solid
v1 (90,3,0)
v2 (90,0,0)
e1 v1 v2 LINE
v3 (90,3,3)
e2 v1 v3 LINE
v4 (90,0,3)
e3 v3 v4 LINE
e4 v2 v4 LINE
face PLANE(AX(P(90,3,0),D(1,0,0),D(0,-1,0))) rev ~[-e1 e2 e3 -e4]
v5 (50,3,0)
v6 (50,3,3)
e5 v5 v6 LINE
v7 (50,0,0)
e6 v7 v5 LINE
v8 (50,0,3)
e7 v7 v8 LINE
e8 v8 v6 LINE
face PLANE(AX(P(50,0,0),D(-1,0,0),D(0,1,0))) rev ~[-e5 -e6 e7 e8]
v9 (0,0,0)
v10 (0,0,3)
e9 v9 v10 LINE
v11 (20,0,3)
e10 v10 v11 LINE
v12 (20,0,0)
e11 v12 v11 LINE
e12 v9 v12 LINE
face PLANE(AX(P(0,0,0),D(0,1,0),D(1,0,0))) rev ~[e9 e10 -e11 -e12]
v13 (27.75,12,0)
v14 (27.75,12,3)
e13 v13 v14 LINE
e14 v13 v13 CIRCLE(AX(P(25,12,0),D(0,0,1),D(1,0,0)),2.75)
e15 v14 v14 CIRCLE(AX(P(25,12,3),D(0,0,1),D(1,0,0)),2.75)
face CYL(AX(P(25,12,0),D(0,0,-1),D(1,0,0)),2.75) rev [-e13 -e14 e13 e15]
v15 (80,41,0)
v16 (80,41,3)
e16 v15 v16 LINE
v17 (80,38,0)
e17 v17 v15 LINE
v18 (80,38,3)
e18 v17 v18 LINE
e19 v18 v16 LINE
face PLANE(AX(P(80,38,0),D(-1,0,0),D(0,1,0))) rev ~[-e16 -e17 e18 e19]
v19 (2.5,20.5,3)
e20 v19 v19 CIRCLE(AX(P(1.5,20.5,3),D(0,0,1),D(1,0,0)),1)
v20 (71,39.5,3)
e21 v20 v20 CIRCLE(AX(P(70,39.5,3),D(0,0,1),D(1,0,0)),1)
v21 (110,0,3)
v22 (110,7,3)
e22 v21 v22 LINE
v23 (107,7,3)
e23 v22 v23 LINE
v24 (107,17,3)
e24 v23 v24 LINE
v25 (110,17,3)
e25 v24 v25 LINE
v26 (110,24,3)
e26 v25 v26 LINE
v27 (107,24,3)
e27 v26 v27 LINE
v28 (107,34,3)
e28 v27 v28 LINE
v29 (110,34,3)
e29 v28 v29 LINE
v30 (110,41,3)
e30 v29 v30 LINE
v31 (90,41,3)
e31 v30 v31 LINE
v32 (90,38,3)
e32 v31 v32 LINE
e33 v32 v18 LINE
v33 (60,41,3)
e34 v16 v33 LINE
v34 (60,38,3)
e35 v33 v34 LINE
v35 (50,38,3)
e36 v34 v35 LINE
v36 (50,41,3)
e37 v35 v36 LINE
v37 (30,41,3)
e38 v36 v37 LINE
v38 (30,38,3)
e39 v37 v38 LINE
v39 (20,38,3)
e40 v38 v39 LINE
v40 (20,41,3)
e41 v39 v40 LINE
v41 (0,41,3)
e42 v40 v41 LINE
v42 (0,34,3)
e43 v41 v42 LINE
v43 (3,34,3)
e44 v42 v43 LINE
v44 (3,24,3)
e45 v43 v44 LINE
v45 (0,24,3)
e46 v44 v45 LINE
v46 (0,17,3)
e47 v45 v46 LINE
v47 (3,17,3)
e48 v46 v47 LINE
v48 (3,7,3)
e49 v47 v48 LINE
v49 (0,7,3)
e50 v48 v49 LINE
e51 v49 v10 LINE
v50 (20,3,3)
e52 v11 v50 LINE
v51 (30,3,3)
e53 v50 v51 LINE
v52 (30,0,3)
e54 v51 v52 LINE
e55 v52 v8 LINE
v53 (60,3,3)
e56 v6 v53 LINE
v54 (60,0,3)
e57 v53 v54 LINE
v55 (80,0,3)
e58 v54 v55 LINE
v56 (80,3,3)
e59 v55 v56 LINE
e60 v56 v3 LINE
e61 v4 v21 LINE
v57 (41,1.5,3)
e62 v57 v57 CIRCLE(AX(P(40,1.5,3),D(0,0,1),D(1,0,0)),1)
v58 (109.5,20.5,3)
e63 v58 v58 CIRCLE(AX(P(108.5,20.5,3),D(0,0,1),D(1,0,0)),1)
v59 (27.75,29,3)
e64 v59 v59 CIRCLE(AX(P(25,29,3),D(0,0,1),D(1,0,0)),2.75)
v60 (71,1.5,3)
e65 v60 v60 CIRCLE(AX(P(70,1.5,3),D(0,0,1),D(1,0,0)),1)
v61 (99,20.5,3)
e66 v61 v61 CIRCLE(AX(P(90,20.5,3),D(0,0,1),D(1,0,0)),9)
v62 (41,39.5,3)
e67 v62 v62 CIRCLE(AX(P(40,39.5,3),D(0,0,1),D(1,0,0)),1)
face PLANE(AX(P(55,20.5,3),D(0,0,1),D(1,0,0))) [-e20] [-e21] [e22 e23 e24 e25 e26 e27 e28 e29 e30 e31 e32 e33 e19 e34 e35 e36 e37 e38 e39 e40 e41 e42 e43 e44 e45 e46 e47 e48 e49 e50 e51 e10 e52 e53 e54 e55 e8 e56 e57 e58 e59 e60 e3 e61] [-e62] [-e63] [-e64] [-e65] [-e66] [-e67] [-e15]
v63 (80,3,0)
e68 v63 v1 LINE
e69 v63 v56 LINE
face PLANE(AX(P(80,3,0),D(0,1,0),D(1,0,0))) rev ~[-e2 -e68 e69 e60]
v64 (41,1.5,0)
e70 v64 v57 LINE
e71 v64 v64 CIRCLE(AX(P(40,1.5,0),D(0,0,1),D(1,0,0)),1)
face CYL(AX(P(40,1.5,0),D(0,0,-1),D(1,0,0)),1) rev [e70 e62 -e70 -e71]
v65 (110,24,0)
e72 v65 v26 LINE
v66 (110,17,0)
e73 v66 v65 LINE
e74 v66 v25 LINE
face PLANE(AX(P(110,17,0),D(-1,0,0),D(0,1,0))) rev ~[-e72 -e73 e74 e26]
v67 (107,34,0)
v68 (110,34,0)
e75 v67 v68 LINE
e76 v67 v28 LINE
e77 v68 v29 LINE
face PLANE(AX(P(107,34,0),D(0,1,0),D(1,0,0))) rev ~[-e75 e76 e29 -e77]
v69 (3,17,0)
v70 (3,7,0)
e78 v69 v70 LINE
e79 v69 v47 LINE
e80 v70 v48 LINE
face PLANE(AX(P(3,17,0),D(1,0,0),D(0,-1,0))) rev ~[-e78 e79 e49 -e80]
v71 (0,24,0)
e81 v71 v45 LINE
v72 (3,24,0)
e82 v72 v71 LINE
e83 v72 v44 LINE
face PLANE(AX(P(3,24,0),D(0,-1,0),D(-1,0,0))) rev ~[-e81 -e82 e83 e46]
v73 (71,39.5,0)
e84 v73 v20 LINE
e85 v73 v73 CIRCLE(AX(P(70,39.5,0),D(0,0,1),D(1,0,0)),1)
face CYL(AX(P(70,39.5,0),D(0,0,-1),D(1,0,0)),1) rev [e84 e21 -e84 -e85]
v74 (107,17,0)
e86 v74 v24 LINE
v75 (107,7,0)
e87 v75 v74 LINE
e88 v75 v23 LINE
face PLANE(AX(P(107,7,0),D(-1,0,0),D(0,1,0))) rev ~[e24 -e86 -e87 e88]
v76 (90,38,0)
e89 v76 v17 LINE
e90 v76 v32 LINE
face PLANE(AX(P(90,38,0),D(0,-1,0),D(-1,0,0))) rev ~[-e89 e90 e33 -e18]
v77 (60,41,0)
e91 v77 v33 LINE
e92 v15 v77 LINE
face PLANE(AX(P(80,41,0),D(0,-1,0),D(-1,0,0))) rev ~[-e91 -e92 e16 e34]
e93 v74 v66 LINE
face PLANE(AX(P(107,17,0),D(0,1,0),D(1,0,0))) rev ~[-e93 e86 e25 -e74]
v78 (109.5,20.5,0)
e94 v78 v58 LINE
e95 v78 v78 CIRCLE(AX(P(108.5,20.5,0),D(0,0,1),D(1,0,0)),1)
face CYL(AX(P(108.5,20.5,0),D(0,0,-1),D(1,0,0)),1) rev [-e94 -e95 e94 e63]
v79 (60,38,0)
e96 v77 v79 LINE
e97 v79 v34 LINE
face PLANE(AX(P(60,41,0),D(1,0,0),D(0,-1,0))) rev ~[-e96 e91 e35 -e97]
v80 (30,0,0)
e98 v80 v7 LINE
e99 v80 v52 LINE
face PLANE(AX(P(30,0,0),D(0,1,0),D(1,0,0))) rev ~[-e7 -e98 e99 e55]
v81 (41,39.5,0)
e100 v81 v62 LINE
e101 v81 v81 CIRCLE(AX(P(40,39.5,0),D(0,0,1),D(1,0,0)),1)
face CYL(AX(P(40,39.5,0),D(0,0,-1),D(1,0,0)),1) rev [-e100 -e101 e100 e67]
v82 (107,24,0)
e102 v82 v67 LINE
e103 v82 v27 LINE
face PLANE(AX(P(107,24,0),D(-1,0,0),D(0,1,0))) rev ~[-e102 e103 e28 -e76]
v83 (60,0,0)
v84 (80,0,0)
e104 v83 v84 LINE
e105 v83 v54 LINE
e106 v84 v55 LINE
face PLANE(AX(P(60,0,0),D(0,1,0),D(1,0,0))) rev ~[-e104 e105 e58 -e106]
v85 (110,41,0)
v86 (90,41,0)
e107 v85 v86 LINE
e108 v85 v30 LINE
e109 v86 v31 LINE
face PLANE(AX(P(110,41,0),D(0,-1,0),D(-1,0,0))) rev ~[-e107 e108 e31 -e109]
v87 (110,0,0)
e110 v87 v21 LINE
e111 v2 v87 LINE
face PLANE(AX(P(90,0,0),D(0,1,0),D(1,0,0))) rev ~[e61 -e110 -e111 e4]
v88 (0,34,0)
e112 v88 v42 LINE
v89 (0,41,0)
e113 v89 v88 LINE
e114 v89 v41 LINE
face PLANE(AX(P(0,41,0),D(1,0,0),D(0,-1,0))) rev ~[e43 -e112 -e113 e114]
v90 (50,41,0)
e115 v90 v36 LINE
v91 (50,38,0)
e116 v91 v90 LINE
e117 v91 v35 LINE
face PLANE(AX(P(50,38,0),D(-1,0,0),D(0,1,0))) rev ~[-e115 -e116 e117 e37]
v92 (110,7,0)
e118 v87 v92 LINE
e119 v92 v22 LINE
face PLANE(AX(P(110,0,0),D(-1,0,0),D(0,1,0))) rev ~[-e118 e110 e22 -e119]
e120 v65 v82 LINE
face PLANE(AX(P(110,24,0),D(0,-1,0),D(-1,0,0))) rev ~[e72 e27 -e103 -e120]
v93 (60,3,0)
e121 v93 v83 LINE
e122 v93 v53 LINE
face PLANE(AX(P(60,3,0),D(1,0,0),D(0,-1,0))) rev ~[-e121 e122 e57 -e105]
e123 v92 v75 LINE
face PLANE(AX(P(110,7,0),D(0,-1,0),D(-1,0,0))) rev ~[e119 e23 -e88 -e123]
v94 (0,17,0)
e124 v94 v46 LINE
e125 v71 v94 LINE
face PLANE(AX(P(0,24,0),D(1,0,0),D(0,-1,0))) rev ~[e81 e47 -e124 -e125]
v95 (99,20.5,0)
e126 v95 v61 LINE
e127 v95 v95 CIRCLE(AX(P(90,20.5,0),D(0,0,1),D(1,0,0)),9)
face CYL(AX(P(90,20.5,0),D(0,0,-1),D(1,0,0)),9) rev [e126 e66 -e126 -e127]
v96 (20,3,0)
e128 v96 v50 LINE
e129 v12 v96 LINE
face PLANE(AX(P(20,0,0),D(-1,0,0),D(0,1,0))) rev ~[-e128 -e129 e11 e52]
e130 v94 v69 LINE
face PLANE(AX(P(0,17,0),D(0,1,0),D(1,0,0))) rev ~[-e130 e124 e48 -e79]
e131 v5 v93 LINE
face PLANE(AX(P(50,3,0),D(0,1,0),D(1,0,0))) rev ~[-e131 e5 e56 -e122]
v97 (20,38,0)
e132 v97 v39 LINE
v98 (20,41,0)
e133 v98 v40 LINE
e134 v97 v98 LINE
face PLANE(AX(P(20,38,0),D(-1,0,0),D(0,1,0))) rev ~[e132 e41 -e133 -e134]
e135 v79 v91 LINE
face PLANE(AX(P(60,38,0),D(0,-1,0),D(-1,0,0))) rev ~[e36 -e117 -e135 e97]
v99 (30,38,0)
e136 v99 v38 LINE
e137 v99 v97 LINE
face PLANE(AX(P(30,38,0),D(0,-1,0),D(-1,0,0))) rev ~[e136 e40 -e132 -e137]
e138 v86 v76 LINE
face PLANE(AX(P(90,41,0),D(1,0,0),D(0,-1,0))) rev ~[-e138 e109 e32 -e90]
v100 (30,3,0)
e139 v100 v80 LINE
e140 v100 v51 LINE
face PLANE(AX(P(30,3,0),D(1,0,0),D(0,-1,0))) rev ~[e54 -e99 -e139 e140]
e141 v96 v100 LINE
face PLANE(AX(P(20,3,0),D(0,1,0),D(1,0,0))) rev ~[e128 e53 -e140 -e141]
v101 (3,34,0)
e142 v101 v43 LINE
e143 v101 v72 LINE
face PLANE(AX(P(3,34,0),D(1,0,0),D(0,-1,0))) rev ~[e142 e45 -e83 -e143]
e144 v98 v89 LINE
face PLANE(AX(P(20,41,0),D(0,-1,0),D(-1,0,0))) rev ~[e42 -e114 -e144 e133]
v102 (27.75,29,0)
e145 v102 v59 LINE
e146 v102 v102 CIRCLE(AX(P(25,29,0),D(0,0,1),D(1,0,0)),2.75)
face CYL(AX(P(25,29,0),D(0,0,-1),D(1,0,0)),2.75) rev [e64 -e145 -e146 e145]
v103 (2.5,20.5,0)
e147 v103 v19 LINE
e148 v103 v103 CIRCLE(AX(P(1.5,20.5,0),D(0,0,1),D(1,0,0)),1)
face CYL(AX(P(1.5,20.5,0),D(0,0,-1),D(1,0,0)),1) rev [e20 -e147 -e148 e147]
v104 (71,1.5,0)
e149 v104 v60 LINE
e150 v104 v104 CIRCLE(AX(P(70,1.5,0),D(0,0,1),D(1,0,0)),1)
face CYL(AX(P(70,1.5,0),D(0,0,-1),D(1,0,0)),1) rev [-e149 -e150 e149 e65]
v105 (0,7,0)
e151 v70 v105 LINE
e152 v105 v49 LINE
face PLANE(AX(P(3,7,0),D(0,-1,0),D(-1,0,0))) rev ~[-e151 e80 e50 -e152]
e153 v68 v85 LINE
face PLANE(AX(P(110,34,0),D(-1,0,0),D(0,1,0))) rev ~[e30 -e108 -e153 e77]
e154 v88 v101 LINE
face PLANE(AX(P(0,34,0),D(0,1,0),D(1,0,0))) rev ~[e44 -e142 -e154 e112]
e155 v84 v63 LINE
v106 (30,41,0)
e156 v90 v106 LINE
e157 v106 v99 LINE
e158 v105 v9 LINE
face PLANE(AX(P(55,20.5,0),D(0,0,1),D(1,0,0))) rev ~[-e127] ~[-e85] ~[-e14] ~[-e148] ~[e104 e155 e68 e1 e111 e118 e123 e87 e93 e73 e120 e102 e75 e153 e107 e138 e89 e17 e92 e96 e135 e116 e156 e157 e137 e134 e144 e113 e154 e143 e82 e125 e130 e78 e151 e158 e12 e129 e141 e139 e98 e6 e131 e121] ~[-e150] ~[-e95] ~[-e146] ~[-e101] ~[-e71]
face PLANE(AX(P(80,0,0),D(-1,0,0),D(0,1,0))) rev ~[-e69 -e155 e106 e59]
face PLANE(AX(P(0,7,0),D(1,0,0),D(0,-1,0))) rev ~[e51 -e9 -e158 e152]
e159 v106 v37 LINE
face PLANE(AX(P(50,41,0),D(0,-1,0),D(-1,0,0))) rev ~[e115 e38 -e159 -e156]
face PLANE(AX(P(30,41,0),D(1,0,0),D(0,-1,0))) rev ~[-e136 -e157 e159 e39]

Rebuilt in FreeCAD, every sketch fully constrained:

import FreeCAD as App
import Part
import Sketcher
from FreeCAD import Vector
Q = App.Units.Quantity


def add_polygon(sketch, points):
    """Adds a closed chain of lines whose ends are joined by coincident constraints."""
    first, n = sketch.GeometryCount, len(points)
    for a, b in zip(points, points[1:] + points[:1]):
        sketch.addGeometry(Part.LineSegment(App.Vector(*a, 0), App.Vector(*b, 0)), False)
    for i in range(n):
        sketch.addConstraint(Sketcher.Constraint("Coincident", first + i, 2, first + (i + 1) % n, 1))

doc = App.newDocument("Part")
body = doc.addObject("PartDesign::Body", "Body")

sketch1 = body.newObject("Sketcher::SketchObject", "Sketch")
sketch1.AttachmentSupport = (doc.getObject("XY_Plane"), [""])
sketch1.MapMode = "FlatFace"
add_polygon(sketch1, [(0, 7), (0, 0), (20, 0), (20, 3), (30, 3), (30, 0), (50, 0), (50, 3), (60, 3), (60, 0), (80, 0), (80, 3), (90, 3), (90, 0), (110, 0), (110, 7), (107, 7), (107, 17), (110, 17), (110, 24), (107, 24), (107, 34), (110, 34), (110, 41), (90, 41), (90, 38), (80, 38), (80, 41), (60, 41), (60, 38), (50, 38), (50, 41), (30, 41), (30, 38), (20, 38), (20, 41), (0, 41), (0, 34), (3, 34), (3, 24), (0, 24), (0, 17), (3, 17), (3, 7)])
sketch1.addGeometry(Part.Circle(Vector(40, 1.5, 0), Vector(0, 0, 1), 1), False)
sketch1.addGeometry(Part.Circle(Vector(25, 12, 0), Vector(0, 0, 1), 2.8), False)
sketch1.addGeometry(Part.Circle(Vector(70, 1.5, 0), Vector(0, 0, 1), 1), False)
sketch1.addGeometry(Part.Circle(Vector(1.5, 20.5, 0), Vector(0, 0, 1), 1), False)
sketch1.addGeometry(Part.Circle(Vector(25, 29, 0), Vector(0, 0, 1), 2.8), False)
sketch1.addGeometry(Part.Circle(Vector(40, 39.5, 0), Vector(0, 0, 1), 1), False)
sketch1.addGeometry(Part.Circle(Vector(90, 20.5, 0), Vector(0, 0, 1), 9), False)
sketch1.addGeometry(Part.Circle(Vector(108.5, 20.5, 0), Vector(0, 0, 1), 1), False)
sketch1.addGeometry(Part.Circle(Vector(70, 39.5, 0), Vector(0, 0, 1), 1), False)
sketch1.addConstraint([
    Sketcher.Constraint("Vertical", 0),
    Sketcher.Constraint("Horizontal", 1),
    Sketcher.Constraint("Vertical", 2),
    Sketcher.Constraint("Horizontal", 3),
    Sketcher.Constraint("Vertical", 4),
    Sketcher.Constraint("Horizontal", 5),
    Sketcher.Constraint("Vertical", 6),
    Sketcher.Constraint("Horizontal", 7),
    Sketcher.Constraint("Vertical", 8),
    Sketcher.Constraint("Horizontal", 9),
    Sketcher.Constraint("Vertical", 10),
    Sketcher.Constraint("Horizontal", 11),
    Sketcher.Constraint("Vertical", 12),
    Sketcher.Constraint("Horizontal", 13),
    Sketcher.Constraint("Vertical", 14),
    Sketcher.Constraint("Horizontal", 15),
    Sketcher.Constraint("Vertical", 16),
    Sketcher.Constraint("Horizontal", 17),
    Sketcher.Constraint("Vertical", 18),
    Sketcher.Constraint("Horizontal", 19),
    Sketcher.Constraint("Vertical", 20),
    Sketcher.Constraint("Horizontal", 21),
    Sketcher.Constraint("Vertical", 22),
    Sketcher.Constraint("Horizontal", 23),
    Sketcher.Constraint("Vertical", 24),
    Sketcher.Constraint("Horizontal", 25),
    Sketcher.Constraint("Vertical", 26),
    Sketcher.Constraint("Horizontal", 27),
    Sketcher.Constraint("Vertical", 28),
    Sketcher.Constraint("Horizontal", 29),
    Sketcher.Constraint("Vertical", 30),
    Sketcher.Constraint("Horizontal", 31),
    Sketcher.Constraint("Vertical", 32),
    Sketcher.Constraint("Horizontal", 33),
    Sketcher.Constraint("Vertical", 34),
    Sketcher.Constraint("Horizontal", 35),
    Sketcher.Constraint("Vertical", 36),
    Sketcher.Constraint("Horizontal", 37),
    Sketcher.Constraint("Vertical", 38),
    Sketcher.Constraint("Horizontal", 39),
    Sketcher.Constraint("Vertical", 40),
    Sketcher.Constraint("Horizontal", 41),
    Sketcher.Constraint("Vertical", 42),
    Sketcher.Constraint("Horizontal", 43),
    Sketcher.Constraint("Coincident", 0, 2, -1, 1),
    Sketcher.Constraint("Equal", 44, 46),
    Sketcher.Constraint("Equal", 46, 47),
    Sketcher.Constraint("Equal", 45, 48),
    Sketcher.Constraint("Equal", 47, 49),
    Sketcher.Constraint("Equal", 49, 51),
    Sketcher.Constraint("Equal", 51, 52),
    Sketcher.Constraint("PointOnObject", 4, 2, -1),
    Sketcher.Constraint("PointOnObject", 8, 2, -1),
    Sketcher.Constraint("PointOnObject", 12, 2, -1),
    Sketcher.Constraint("PointOnObject", 35, 2, -2),
    Sketcher.Constraint("PointOnObject", 39, 2, -2),
    Sketcher.Constraint("Horizontal", 44, 3, 46, 3),
    Sketcher.Constraint("Horizontal", 47, 3, 50, 3),
    Sketcher.Constraint("Horizontal", 50, 3, 51, 3),
    Sketcher.Constraint("Horizontal", 49, 3, 52, 3),
    Sketcher.Constraint("Horizontal", 3, 2, 6, 2),
    Sketcher.Constraint("Horizontal", 7, 2, 10, 2),
    Sketcher.Constraint("Horizontal", 23, 2, 26, 2),
    Sketcher.Constraint("Horizontal", 25, 2, 28, 2),
    Sketcher.Constraint("Horizontal", 27, 2, 30, 2),
    Sketcher.Constraint("Horizontal", 29, 2, 32, 2),
    Sketcher.Constraint("Horizontal", 31, 2, 34, 2),
    Sketcher.Constraint("Horizontal", 21, 2, 36, 2),
    Sketcher.Constraint("Horizontal", 19, 2, 38, 2),
    Sketcher.Constraint("Horizontal", 17, 2, 40, 2),
    Sketcher.Constraint("Horizontal", 15, 2, 42, 2),
    Sketcher.Constraint("Vertical", 45, 3, 48, 3),
    Sketcher.Constraint("Vertical", 44, 3, 49, 3),
    Sketcher.Constraint("Vertical", 46, 3, 52, 3),
    Sketcher.Constraint("Vertical", 50, 3, 11, 2),
    Sketcher.Constraint("Vertical", 14, 2, 17, 2),
    Sketcher.Constraint("Vertical", 16, 2, 19, 2),
    Sketcher.Constraint("Vertical", 18, 2, 21, 2),
    Sketcher.Constraint("Vertical", 12, 2, 23, 2),
    Sketcher.Constraint("Vertical", 10, 2, 25, 2),
    Sketcher.Constraint("Vertical", 8, 2, 27, 2),
    Sketcher.Constraint("Vertical", 6, 2, 29, 2),
    Sketcher.Constraint("Vertical", 4, 2, 31, 2),
    Sketcher.Constraint("Vertical", 2, 2, 33, 2),
    Sketcher.Constraint("Vertical", 38, 2, 41, 2),
    Sketcher.Constraint("Equal", 1, 5),
    Sketcher.Constraint("Equal", 3, 7),
    Sketcher.Constraint("Equal", 5, 9),
    Sketcher.Constraint("Equal", 7, 11),
    Sketcher.Constraint("Equal", 9, 13),
    Sketcher.Constraint("Equal", 21, 37),
    Sketcher.Constraint("Equal", 43, 2),
    Sketcher.Constraint("Equal", 33, 16),
    Sketcher.Constraint("Equal", 14, 18),
    Sketcher.Constraint("Equal", 16, 20),
    Sketcher.Constraint("Equal", 18, 22),
    Sketcher.Constraint("Equal", 12, 24),
    Sketcher.Constraint("Diameter", 44, Q("2 mm")),
    Sketcher.Constraint("Diameter", 50, Q("18 mm")),
    Sketcher.Constraint("Diameter", 45, Q("5.5 mm")),
    Sketcher.Constraint("DistanceX", 1, 1, 1, 2, Q("20 mm")),
    Sketcher.Constraint("DistanceX", 3, 1, 3, 2, Q("10 mm")),
    Sketcher.Constraint("DistanceX", 15, 2, 15, 1, Q("3 mm")),
    Sketcher.Constraint("DistanceY", 0, 2, 0, 1, Q("7 mm")),
    Sketcher.Constraint("DistanceX", -1, 1, 44, 3, Q("40 mm")),
    Sketcher.Constraint("DistanceX", -1, 1, 45, 3, Q("25 mm")),
    Sketcher.Constraint("DistanceY", -1, 1, 45, 3, Q("12 mm")),
    Sketcher.Constraint("DistanceX", -1, 1, 46, 3, Q("70 mm")),
    Sketcher.Constraint("DistanceY", -1, 1, 48, 3, Q("29 mm")),
    Sketcher.Constraint("DistanceY", 44, 3, 47, 3, Q("19 mm")),
    Sketcher.Constraint("DistanceY", 44, 3, 49, 3, Q("38 mm")),
    Sketcher.Constraint("DistanceY", -1, 1, 44, 3, Q("1.5 mm")),
    Sketcher.Constraint("DistanceX", -1, 1, 47, 3, Q("1.5 mm")),
    Sketcher.Constraint("DistanceX", -1, 1, 51, 3, Q("108.5 mm")),
])
pad1 = body.newObject("PartDesign::Pad", "Pad")
pad1.Profile = sketch1
pad1.Length = 3

doc.recompute()
